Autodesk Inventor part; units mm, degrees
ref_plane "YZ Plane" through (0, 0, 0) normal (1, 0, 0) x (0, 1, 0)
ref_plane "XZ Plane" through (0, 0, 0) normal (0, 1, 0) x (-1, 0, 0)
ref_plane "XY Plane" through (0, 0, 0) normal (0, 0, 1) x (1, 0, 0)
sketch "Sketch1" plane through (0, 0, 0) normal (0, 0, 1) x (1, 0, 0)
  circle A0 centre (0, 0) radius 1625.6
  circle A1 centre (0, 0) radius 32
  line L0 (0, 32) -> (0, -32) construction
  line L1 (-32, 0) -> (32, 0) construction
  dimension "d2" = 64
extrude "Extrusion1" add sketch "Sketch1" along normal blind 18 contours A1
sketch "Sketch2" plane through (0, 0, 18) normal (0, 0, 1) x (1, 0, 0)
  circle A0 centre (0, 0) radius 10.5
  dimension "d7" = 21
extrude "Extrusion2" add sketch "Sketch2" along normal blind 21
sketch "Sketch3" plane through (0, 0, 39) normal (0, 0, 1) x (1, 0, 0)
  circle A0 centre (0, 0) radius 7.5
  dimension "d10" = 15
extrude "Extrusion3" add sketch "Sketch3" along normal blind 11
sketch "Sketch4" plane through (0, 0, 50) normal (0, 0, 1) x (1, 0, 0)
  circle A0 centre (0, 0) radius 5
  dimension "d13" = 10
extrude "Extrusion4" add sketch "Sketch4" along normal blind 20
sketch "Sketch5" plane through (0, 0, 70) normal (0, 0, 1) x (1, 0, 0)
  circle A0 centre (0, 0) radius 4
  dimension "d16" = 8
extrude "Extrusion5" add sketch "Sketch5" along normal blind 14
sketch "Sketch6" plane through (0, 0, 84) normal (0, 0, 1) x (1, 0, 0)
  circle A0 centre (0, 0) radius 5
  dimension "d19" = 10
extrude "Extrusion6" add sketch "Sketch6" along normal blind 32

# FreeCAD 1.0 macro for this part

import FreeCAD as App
import Part
import Sketcher

V = App.Vector

doc = App.newDocument("Part")
body = doc.addObject("PartDesign::Body", "Body")

# Sketch on XY plane
sketch1 = doc.addObject("Sketcher::SketchObject", "Sketch")
body.addObject(sketch1)
sketch1.AttachmentSupport = (doc.XY_Plane, [""])
sketch1.MapMode = "FlatFace"
sketch1.addGeometry(Part.Circle(V(0, 0, 0), V(0, 0, 1), 32), False)
sketch1.addConstraint(Sketcher.Constraint("Coincident", 0, 3, -1, 1))
sketch1.addConstraint(Sketcher.Constraint("Diameter", 0, 64.0))
pad1 = doc.addObject("PartDesign::Pad", "Pad")
body.addObject(pad1)
pad1.Profile = sketch1
pad1.Length = 18

# Sketch on XY plane
sketch2 = doc.addObject("Sketcher::SketchObject", "Sketch001")
body.addObject(sketch2)
sketch2.AttachmentSupport = (doc.XY_Plane, [""])
sketch2.MapMode = "FlatFace"
sketch2.AttachmentOffset = App.Placement(V(0, 0, 18), App.Rotation())
sketch2.addGeometry(Part.Circle(V(0, 0, 0), V(0, 0, 1), 10.5), False)
sketch2.addConstraint(Sketcher.Constraint("Coincident", 0, 3, -1, 1))
sketch2.addConstraint(Sketcher.Constraint("Diameter", 0, 21.0))
pad2 = doc.addObject("PartDesign::Pad", "Pad001")
body.addObject(pad2)
pad2.Profile = sketch2
pad2.Length = 21

# Sketch on XY plane
sketch3 = doc.addObject("Sketcher::SketchObject", "Sketch002")
body.addObject(sketch3)
sketch3.AttachmentSupport = (doc.XY_Plane, [""])
sketch3.MapMode = "FlatFace"
sketch3.AttachmentOffset = App.Placement(V(0, 0, 39), App.Rotation())
sketch3.addGeometry(Part.Circle(V(0, 0, 0), V(0, 0, 1), 7.5), False)
sketch3.addConstraint(Sketcher.Constraint("Coincident", 0, 3, -1, 1))
sketch3.addConstraint(Sketcher.Constraint("Diameter", 0, 15.0))
pad3 = doc.addObject("PartDesign::Pad", "Pad002")
body.addObject(pad3)
pad3.Profile = sketch3
pad3.Length = 11

# Sketch on XY plane
sketch4 = doc.addObject("Sketcher::SketchObject", "Sketch003")
body.addObject(sketch4)
sketch4.AttachmentSupport = (doc.XY_Plane, [""])
sketch4.MapMode = "FlatFace"
sketch4.AttachmentOffset = App.Placement(V(0, 0, 50), App.Rotation())
sketch4.addGeometry(Part.Circle(V(0, 0, 0), V(0, 0, 1), 5), False)
sketch4.addConstraint(Sketcher.Constraint("Coincident", 0, 3, -1, 1))
sketch4.addConstraint(Sketcher.Constraint("Diameter", 0, 10.0))
pad4 = doc.addObject("PartDesign::Pad", "Pad003")
body.addObject(pad4)
pad4.Profile = sketch4
pad4.Length = 20

# Sketch on XY plane
sketch5 = doc.addObject("Sketcher::SketchObject", "Sketch004")
body.addObject(sketch5)
sketch5.AttachmentSupport = (doc.XY_Plane, [""])
sketch5.MapMode = "FlatFace"
sketch5.AttachmentOffset = App.Placement(V(0, 0, 70), App.Rotation())
sketch5.addGeometry(Part.Circle(V(0, 0, 0), V(0, 0, 1), 4), False)
sketch5.addConstraint(Sketcher.Constraint("Coincident", 0, 3, -1, 1))
sketch5.addConstraint(Sketcher.Constraint("Diameter", 0, 8.0))
pad5 = doc.addObject("PartDesign::Pad", "Pad004")
body.addObject(pad5)
pad5.Profile = sketch5
pad5.Length = 14

# Sketch on XY plane
sketch6 = doc.addObject("Sketcher::SketchObject", "Sketch005")
body.addObject(sketch6)
sketch6.AttachmentSupport = (doc.XY_Plane, [""])
sketch6.MapMode = "FlatFace"
sketch6.AttachmentOffset = App.Placement(V(0, 0, 84), App.Rotation())
sketch6.addGeometry(Part.Circle(V(0, 0, 0), V(0, 0, 1), 5), False)
sketch6.addConstraint(Sketcher.Constraint("Coincident", 0, 3, -1, 1))
sketch6.addConstraint(Sketcher.Constraint("Diameter", 0, 10.0))
pad6 = doc.addObject("PartDesign::Pad", "Pad005")
body.addObject(pad6)
pad6.Profile = sketch6
pad6.Length = 32

doc.recompute()
